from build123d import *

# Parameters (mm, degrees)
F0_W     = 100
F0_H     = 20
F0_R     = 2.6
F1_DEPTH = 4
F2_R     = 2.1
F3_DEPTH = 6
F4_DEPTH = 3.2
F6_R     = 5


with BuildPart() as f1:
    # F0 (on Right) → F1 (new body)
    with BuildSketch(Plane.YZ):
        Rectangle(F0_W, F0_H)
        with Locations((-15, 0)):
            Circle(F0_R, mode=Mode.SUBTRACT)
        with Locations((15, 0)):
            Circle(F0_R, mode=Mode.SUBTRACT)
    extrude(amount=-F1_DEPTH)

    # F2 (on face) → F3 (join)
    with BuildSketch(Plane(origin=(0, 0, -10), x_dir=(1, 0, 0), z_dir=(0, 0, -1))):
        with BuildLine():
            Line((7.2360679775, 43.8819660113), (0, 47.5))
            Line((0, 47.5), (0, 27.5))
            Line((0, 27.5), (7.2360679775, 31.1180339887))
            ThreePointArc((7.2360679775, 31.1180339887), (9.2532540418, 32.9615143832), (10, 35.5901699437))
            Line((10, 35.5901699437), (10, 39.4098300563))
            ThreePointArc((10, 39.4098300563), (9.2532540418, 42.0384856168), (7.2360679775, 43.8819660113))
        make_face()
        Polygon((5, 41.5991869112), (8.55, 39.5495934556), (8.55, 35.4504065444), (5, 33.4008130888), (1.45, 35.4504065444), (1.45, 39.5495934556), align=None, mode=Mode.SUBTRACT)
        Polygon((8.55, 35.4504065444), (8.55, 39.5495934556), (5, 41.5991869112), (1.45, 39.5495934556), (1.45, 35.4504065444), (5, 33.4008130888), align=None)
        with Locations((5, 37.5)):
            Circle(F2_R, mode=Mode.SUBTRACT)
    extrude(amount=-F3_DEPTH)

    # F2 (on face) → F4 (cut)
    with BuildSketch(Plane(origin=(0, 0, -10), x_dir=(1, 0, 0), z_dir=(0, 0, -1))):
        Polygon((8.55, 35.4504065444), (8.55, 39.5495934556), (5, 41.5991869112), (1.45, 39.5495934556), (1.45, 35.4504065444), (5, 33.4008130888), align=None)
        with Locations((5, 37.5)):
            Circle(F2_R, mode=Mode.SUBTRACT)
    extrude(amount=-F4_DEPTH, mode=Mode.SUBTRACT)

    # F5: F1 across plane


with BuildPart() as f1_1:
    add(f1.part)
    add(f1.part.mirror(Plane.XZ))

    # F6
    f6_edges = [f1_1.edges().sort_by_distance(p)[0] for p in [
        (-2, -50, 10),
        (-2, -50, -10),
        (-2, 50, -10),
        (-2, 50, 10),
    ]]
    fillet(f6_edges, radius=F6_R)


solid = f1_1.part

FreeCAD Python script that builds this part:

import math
import FreeCAD as App
import Part
import Sketcher
Q = App.Units.Quantity


def edges_at(feature, points):
    """Names of the edges that pass closest to the given points."""
    edges = feature.Shape.Edges
    near = lambda p: min(range(len(edges)), key=lambda i: edges[i].distToShape(Part.Vertex(*p))[0])
    return sorted({f"Edge{near(p) + 1}" for p in points})

doc = App.newDocument("Part")
body = doc.addObject("PartDesign::Body", "Body")

sketch1 = body.newObject("Sketcher::SketchObject", "Sketch")
sketch1.AttachmentSupport = (doc.getObject("YZ_Plane"), [""])
sketch1.MapMode = "FlatFace"
sketch1.addGeometry([
    Part.LineSegment(App.Vector(-50, 10, 0), App.Vector(-50, -10, 0)),
    Part.LineSegment(App.Vector(-50, -10, 0), App.Vector(50, -10, 0)),
    Part.LineSegment(App.Vector(50, -10, 0), App.Vector(50, 10, 0)),
    Part.LineSegment(App.Vector(50, 10, 0), App.Vector(-50, 10, 0)),
    Part.Circle(App.Vector(-15, 0, 0), App.Vector(0, 0, 1), 2.6),
    Part.Circle(App.Vector(15, 0, 0), App.Vector(0, 0, 1), 2.6),
], False)
sketch1.addConstraint([
    Sketcher.Constraint("Coincident", 0, 2, 1, 1),
    Sketcher.Constraint("Coincident", 1, 2, 2, 1),
    Sketcher.Constraint("Coincident", 2, 2, 3, 1),
    Sketcher.Constraint("Coincident", 3, 2, 0, 1),
    Sketcher.Constraint("Vertical", 0),
    Sketcher.Constraint("Horizontal", 1),
    Sketcher.Constraint("Vertical", 2),
    Sketcher.Constraint("Horizontal", 3),
    Sketcher.Constraint("Equal", 4, 5),
    Sketcher.Constraint("Symmetric", 4, 3, 5, 3, -1, 1),
    Sketcher.Constraint("Symmetric", 0, 2, 2, 2, -1, 1),
    Sketcher.Constraint("PointOnObject", 4, 3, -1),
    Sketcher.Constraint("Diameter", 4, Q("5.2 mm")),
    Sketcher.Constraint("DistanceX", 1, 1, 1, 2, Q("100 mm")),
    Sketcher.Constraint("DistanceY", 0, 2, 0, 1, Q("20 mm")),
    Sketcher.Constraint("DistanceX", 4, 3, -1, 1, Q("15 mm")),
])
pad1 = body.newObject("PartDesign::Pad", "Pad")
pad1.Profile = sketch1
pad1.Length = 4
pad1.Reversed = True

sketch2 = body.newObject("Sketcher::SketchObject", "Sketch001")
sketch2.AttachmentSupport = (doc.getObject("XY_Plane"), [""])
sketch2.MapMode = "FlatFace"
sketch2.AttachmentOffset = App.Placement(App.Vector(0, 0, -10), App.Rotation())
sketch2.addGeometry([
    Part.LineSegment(App.Vector(7.236068, -43.881966, 0), App.Vector(0, -47.5, 0)),
    Part.LineSegment(App.Vector(0, -47.5, 0), App.Vector(0, -27.5, 0)),
    Part.LineSegment(App.Vector(0, -27.5, 0), App.Vector(7.236068, -31.118034, 0)),
    Part.ArcOfCircle(Part.Circle(App.Vector(5, -35.59017, 0), App.Vector(0, 0, 1), 5), math.radians(0), math.radians(63.434949)),
    Part.LineSegment(App.Vector(10, -35.59017, 0), App.Vector(10, -39.40983, 0)),
    Part.ArcOfCircle(Part.Circle(App.Vector(5, -39.40983, 0), App.Vector(0, 0, 1), 5), math.radians(-63.434949), math.radians(0)),
    Part.Circle(App.Vector(5, -37.5, 0), App.Vector(0, 0, 1), 2.1),
], False)
sketch2.addConstraint([
    Sketcher.Constraint("Coincident", 0, 2, 1, 1),
    Sketcher.Constraint("Coincident", 1, 2, 2, 1),
    Sketcher.Constraint("Tangent", 2, 2, 3, 2),
    Sketcher.Constraint("Tangent", 3, 1, 4, 1),
    Sketcher.Constraint("Tangent", 4, 2, 5, 2),
    Sketcher.Constraint("Tangent", 5, 1, 0, 1),
    Sketcher.Constraint("Vertical", 1),
    Sketcher.Constraint("Vertical", 4),
    Sketcher.Constraint("Equal", 3, 5),
    Sketcher.Constraint("PointOnObject", 0, 2, -2),
    Sketcher.Constraint("Vertical", 5, 3, 6, 3),
    Sketcher.Constraint("Vertical", 2, 2, 5, 1),
    Sketcher.Constraint("Radius", 3, Q("5 mm")),
    Sketcher.Constraint("Diameter", 6, Q("4.2 mm")),
    Sketcher.Constraint("DistanceY", 1, 1, 1, 2, Q("20 mm")),
    Sketcher.Constraint("DistanceX", -1, 1, 3, 3, Q("5 mm")),
    Sketcher.Constraint("DistanceY", 0, 2, 6, 3, Q("10 mm")),
    Sketcher.Constraint("DistanceY", 6, 3, -1, 1, Q("37.5 mm")),
    Sketcher.Constraint("DistanceY", 4, 2, 4, 1, Q("3.81966 mm")),
])
pad2 = body.newObject("PartDesign::Pad", "Pad001")
pad2.Profile = sketch2
pad2.Length = 6

sketch3 = body.newObject("Sketcher::SketchObject", "Sketch002")
sketch3.AttachmentSupport = (doc.getObject("XY_Plane"), [""])
sketch3.MapMode = "FlatFace"
sketch3.AttachmentOffset = App.Placement(App.Vector(0, 0, -10), App.Rotation())
sketch3.addGeometry([
    Part.LineSegment(App.Vector(8.55, -35.450407, 0), App.Vector(8.55, -39.549593, 0)),
    Part.LineSegment(App.Vector(8.55, -39.549593, 0), App.Vector(5, -41.599187, 0)),
    Part.LineSegment(App.Vector(5, -41.599187, 0), App.Vector(1.45, -39.549593, 0)),
    Part.LineSegment(App.Vector(1.45, -39.549593, 0), App.Vector(1.45, -35.450407, 0)),
    Part.LineSegment(App.Vector(1.45, -35.450407, 0), App.Vector(5, -33.400813, 0)),
    Part.LineSegment(App.Vector(5, -33.400813, 0), App.Vector(8.55, -35.450407, 0)),
    Part.Circle(App.Vector(5, -37.5, 0), App.Vector(0, 0, 1), 2.1),
], False)
sketch3.addConstraint([
    Sketcher.Constraint("Coincident", 0, 2, 1, 1),
    Sketcher.Constraint("Coincident", 1, 2, 2, 1),
    Sketcher.Constraint("Coincident", 2, 2, 3, 1),
    Sketcher.Constraint("Coincident", 3, 2, 4, 1),
    Sketcher.Constraint("Coincident", 4, 2, 5, 1),
    Sketcher.Constraint("Coincident", 5, 2, 0, 1),
    Sketcher.Constraint("Vertical", 0),
    Sketcher.Constraint("Vertical", 3),
    Sketcher.Constraint("Parallel", 1, 4),
    Sketcher.Constraint("Parallel", 2, 5),
    Sketcher.Constraint("Horizontal", 0, 2, 2, 2),
    Sketcher.Constraint("Horizontal", 3, 2, 5, 2),
    Sketcher.Constraint("Vertical", 6, 3, 1, 2),
    Sketcher.Constraint("Vertical", 1, 2, 4, 2),
    Sketcher.Constraint("Diameter", 6, Q("4.2 mm")),
    Sketcher.Constraint("Angle", 1, Q("-150 deg")),
    Sketcher.Constraint("DistanceX", -1, 1, 6, 3, Q("5 mm")),
    Sketcher.Constraint("DistanceY", 6, 3, -1, 1, Q("37.5 mm")),
    Sketcher.Constraint("DistanceX", 2, 2, 0, 2, Q("7.1 mm")),
    Sketcher.Constraint("DistanceY", 0, 2, 0, 1, Q("4.099187 mm")),
    Sketcher.Constraint("DistanceY", 0, 2, -1, 1, Q("39.549593 mm")),
])
pocket1 = body.newObject("PartDesign::Pocket", "Pocket")
pocket1.Profile = sketch3
pocket1.Length = 3.2
pocket1.Reversed = True
body2 = doc.addObject("PartDesign::Body", "Body001")
doc.recompute()

body2.BaseFeature = body
doc.recompute()

mirroring = doc.addObject("Part::Mirroring", "Mirroring")
mirroring.Source = body
mirroring.Base = App.Vector(0, 0, 0)
mirroring.Normal = App.Vector(0, -1, 0)
body3 = doc.addObject("PartDesign::Body", "Body002")
body3.BaseFeature = mirroring
boolean = body2.newObject("PartDesign::Boolean", "Boolean")
boolean.Type = "Fuse"
boolean.addObjects([body3])
doc.recompute()

fillet = body2.newObject("PartDesign::Fillet", "Fillet")
fillet.Base = (boolean, edges_at(boolean, [
    (-2, -50, 10),
    (-2, -50, -10),
    (-2, 50, -10),
    (-2, 50, 10),
]))
fillet.Radius = 5
mirroring.Visibility = False

doc.recompute()
